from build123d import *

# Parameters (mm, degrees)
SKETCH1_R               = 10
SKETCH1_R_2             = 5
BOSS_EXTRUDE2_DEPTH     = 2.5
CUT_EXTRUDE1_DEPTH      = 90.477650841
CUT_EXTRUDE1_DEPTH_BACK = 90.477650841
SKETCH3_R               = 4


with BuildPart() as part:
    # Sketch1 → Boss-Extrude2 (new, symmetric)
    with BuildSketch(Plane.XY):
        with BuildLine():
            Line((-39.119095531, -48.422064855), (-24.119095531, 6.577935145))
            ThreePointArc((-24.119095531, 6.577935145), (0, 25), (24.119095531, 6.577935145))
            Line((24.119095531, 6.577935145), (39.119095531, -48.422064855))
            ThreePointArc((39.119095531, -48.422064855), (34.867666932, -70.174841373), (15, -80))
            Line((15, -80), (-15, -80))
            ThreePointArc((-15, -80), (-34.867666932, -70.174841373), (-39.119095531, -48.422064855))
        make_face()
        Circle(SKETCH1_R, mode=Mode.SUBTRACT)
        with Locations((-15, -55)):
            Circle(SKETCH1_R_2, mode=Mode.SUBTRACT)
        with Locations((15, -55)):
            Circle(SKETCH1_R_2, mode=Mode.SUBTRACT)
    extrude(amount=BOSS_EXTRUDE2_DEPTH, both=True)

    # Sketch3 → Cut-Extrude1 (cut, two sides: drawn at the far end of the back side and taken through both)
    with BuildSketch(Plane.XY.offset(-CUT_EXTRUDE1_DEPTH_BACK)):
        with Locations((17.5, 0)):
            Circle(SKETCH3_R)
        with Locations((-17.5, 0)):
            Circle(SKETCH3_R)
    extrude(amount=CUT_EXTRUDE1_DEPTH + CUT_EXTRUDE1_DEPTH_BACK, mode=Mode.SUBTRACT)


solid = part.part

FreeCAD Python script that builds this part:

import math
import FreeCAD as App
import Part
import Sketcher
from FreeCAD import Vector
Q = App.Units.Quantity

doc = App.newDocument("Part")
body = doc.addObject("PartDesign::Body", "Body")

sketch1 = body.newObject("Sketcher::SketchObject", "Sketch")
sketch1.AttachmentSupport = (doc.getObject("XY_Plane"), [""])
sketch1.MapMode = "FlatFace"
sketch1.addGeometry([
    Part.LineSegment(Vector(-24, 7, 0), Vector(-39, -48, 0)),
    Part.ArcOfCircle(Part.Circle(Vector(-15, -55, 0), Vector(0, 0, 1), 25), math.radians(165), math.radians(270)),
    Part.LineSegment(Vector(-15, -80, 0), Vector(15, -80, 0)),
    Part.ArcOfCircle(Part.Circle(Vector(15, -55, 0), Vector(0, 0, 1), 25), math.radians(-90), math.radians(15)),
    Part.LineSegment(Vector(39, -48, 0), Vector(24, 7, 0)),
    Part.ArcOfCircle(Part.Circle(Vector(0, 0, 0), Vector(0, 0, 1), 25), math.radians(15), math.radians(165)),
    Part.Circle(Vector(15, -55, 0), Vector(0, 0, 1), 5),
    Part.Circle(Vector(-15, -55, 0), Vector(0, 0, 1), 5),
    Part.Circle(Vector(0, 0, 0), Vector(0, 0, 1), 10),
], False)
sketch1.addConstraint([
    Sketcher.Constraint("Tangent", 0, 2, 1, 1),
    Sketcher.Constraint("Tangent", 1, 2, 2, 1),
    Sketcher.Constraint("Tangent", 2, 2, 3, 1),
    Sketcher.Constraint("Tangent", 3, 2, 4, 1),
    Sketcher.Constraint("Tangent", 4, 2, 5, 1),
    Sketcher.Constraint("Tangent", 5, 2, 0, 1),
    Sketcher.Constraint("Horizontal", 2),
    Sketcher.Constraint("Coincident", 5, 3, -1, 1),
    Sketcher.Constraint("Coincident", 8, 3, -1, 1),
    Sketcher.Constraint("Coincident", 6, 3, 3, 3),
    Sketcher.Constraint("Coincident", 7, 3, 1, 3),
    Sketcher.Constraint("Equal", 1, 3),
    Sketcher.Constraint("Equal", 3, 5),
    Sketcher.Constraint("Equal", 6, 7),
    Sketcher.Constraint("Horizontal", 0, 2, 3, 2),
    Sketcher.Constraint("Diameter", 6, Q("10 mm")),
    Sketcher.Constraint("Diameter", 8, Q("20 mm")),
    Sketcher.Constraint("Radius", 1, Q("25 mm")),
    Sketcher.Constraint("DistanceX", 2, 1, 2, 2, Q("30 mm")),
    Sketcher.Constraint("DistanceY", 1, 3, -1, 1, Q("55 mm")),
])
pad1 = body.newObject("PartDesign::Pad", "Pad")
pad1.Profile = sketch1
pad1.Length = 5
pad1.Midplane = True

sketch2 = body.newObject("Sketcher::SketchObject", "Sketch001")
sketch2.AttachmentSupport = (doc.getObject("XY_Plane"), [""])
sketch2.MapMode = "FlatFace"
sketch2.addGeometry([
    Part.Circle(Vector(17.5, 0, 0), Vector(0, 0, 1), 4),
    Part.Circle(Vector(-17.5, 0, 0), Vector(0, 0, 1), 4),
], False)
sketch2.addConstraint([
    Sketcher.Constraint("Equal", 0, 1),
    Sketcher.Constraint("Symmetric", 0, 3, 1, 3, -1, 1),
    Sketcher.Constraint("PointOnObject", 0, 3, -1),
    Sketcher.Constraint("Diameter", 0, Q("8 mm")),
    Sketcher.Constraint("DistanceX", 1, 3, 0, 3, Q("35 mm")),
])
pocket1 = body.newObject("PartDesign::Pocket", "Pocket")
pocket1.Profile = sketch2
pocket1.Type = "ThroughAll"
pocket1.Midplane = True

doc.recompute()
